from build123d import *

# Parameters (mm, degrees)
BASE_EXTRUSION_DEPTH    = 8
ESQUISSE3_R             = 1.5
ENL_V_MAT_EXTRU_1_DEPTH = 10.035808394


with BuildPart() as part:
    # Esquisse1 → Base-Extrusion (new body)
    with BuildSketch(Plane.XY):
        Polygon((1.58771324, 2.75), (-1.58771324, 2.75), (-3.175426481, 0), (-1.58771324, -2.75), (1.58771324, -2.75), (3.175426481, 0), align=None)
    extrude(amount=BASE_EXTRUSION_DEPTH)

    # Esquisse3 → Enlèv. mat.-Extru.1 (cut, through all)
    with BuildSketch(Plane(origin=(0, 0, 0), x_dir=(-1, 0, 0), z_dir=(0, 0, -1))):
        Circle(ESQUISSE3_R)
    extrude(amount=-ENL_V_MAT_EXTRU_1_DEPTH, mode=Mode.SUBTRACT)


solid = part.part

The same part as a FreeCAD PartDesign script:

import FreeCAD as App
import Part
import Sketcher
Q = App.Units.Quantity

doc = App.newDocument("Part")
body = doc.addObject("PartDesign::Body", "Body")

sketch1 = body.newObject("Sketcher::SketchObject", "Sketch")
sketch1.AttachmentSupport = (doc.getObject("XY_Plane"), [""])
sketch1.MapMode = "FlatFace"
sketch1.addGeometry(Part.LineSegment(App.Vector(1.6, 2.8, 0), App.Vector(-1.6, 2.8, 0)), False)
sketch1.addGeometry(Part.LineSegment(App.Vector(-1.6, 2.8, 0), App.Vector(-3.2, 0, 0)), False)
sketch1.addGeometry(Part.LineSegment(App.Vector(-3.2, 0, 0), App.Vector(-1.6, -2.8, 0)), False)
sketch1.addGeometry(Part.LineSegment(App.Vector(-1.6, -2.8, 0), App.Vector(1.6, -2.8, 0)), False)
sketch1.addGeometry(Part.LineSegment(App.Vector(1.6, -2.8, 0), App.Vector(3.2, 0, 0)), False)
sketch1.addGeometry(Part.LineSegment(App.Vector(3.2, 0, 0), App.Vector(1.6, 2.8, 0)), False)
sketch1.addConstraint(Sketcher.Constraint("Coincident", 0, 2, 1, 1))
sketch1.addConstraint(Sketcher.Constraint("Coincident", 1, 2, 2, 1))
sketch1.addConstraint(Sketcher.Constraint("Coincident", 2, 2, 3, 1))
sketch1.addConstraint(Sketcher.Constraint("Coincident", 3, 2, 4, 1))
sketch1.addConstraint(Sketcher.Constraint("Coincident", 4, 2, 5, 1))
sketch1.addConstraint(Sketcher.Constraint("Coincident", 5, 2, 0, 1))
sketch1.addConstraint(Sketcher.Constraint("Horizontal", 0))
sketch1.addConstraint(Sketcher.Constraint("Horizontal", 3))
sketch1.addConstraint(Sketcher.Constraint("Symmetric", 0, 2, 3, 2, -1, 1))
sketch1.addConstraint(Sketcher.Constraint("Symmetric", 1, 2, 4, 2, -1, 1))
sketch1.addConstraint(Sketcher.Constraint("PointOnObject", 1, 2, -1))
sketch1.addConstraint(Sketcher.Constraint("Parallel", 2, 5))
sketch1.addConstraint(Sketcher.Constraint("Vertical", 0, 2, 2, 2))
sketch1.addConstraint(Sketcher.Constraint("Angle", 1, Q("-120 deg")))
sketch1.addConstraint(Sketcher.Constraint("DistanceY", 2, 2, 0, 2, Q("5.5 mm")))
sketch1.addConstraint(Sketcher.Constraint("DistanceX", 0, 2, 0, 1, Q("3.175426 mm")))
pad1 = body.newObject("PartDesign::Pad", "Pad")
pad1.Profile = sketch1
pad1.Length = 8

sketch2 = body.newObject("Sketcher::SketchObject", "Sketch001")
sketch2.AttachmentSupport = (doc.getObject("XY_Plane"), [""])
sketch2.MapMode = "FlatFace"
sketch2.addGeometry(Part.Circle(App.Vector(0, 0, 0), App.Vector(0, 0, 1), 1.5), False)
sketch2.addConstraint(Sketcher.Constraint("Coincident", 0, 3, -1, 1))
sketch2.addConstraint(Sketcher.Constraint("Diameter", 0, Q("3 mm")))
pocket1 = body.newObject("PartDesign::Pocket", "Pocket")
pocket1.Profile = sketch2
pocket1.Type = "ThroughAll"
pocket1.Reversed = True

doc.recompute()
